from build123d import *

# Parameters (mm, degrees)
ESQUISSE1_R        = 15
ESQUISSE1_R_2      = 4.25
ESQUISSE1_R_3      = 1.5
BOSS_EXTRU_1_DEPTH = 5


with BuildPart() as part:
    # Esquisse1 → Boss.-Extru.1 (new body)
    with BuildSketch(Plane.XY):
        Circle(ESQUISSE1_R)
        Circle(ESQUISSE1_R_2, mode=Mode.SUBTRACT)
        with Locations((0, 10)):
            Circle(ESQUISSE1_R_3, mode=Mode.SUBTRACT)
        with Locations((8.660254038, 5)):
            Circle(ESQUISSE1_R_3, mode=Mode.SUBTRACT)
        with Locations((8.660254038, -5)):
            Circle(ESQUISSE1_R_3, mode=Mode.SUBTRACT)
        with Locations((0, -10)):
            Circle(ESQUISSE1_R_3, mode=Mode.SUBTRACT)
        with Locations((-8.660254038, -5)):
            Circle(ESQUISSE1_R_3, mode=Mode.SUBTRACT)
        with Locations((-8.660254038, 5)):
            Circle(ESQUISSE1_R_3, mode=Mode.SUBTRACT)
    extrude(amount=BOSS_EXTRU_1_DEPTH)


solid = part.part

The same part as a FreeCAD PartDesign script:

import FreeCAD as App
import Part
import Sketcher

V = App.Vector
Q = App.Units.Quantity

doc = App.newDocument("Part")
params = doc.addObject("Spreadsheet::Sheet", "Params")
for row, (alias, value) in enumerate([
    ("sketch1_diameter", "30 mm"),
    ("sketch1_diameter2", "3 mm"),
    ("sketch1_diameter3", "8.5 mm"),
    ("pad1_length", "5 mm"),
], start=1):
    params.set(f"A{row}", alias)
    params.set(f"B{row}", "=" + value)
    params.setAlias(f"B{row}", alias)

body = doc.addObject("PartDesign::Body", "Body")

sketch1 = body.newObject("Sketcher::SketchObject", "Sketch")
sketch1.AttachmentSupport = (doc.getObject("XY_Plane"), [""])
sketch1.MapMode = "FlatFace"
sketch1.addGeometry(Part.Circle(V(0, 0, 0), V(0, 0, 1), 15), False)
sketch1.addGeometry(Part.Circle(V(-8.7, -5, 0), V(0, 0, 1), 1.5), False)
sketch1.addGeometry(Part.Circle(V(0, -10, 0), V(0, 0, 1), 1.5), False)
sketch1.addGeometry(Part.Circle(V(8.7, -5, 0), V(0, 0, 1), 1.5), False)
sketch1.addGeometry(Part.Circle(V(-8.7, 5, 0), V(0, 0, 1), 1.5), False)
sketch1.addGeometry(Part.Circle(V(0, 0, 0), V(0, 0, 1), 4.2), False)
sketch1.addGeometry(Part.Circle(V(8.7, 5, 0), V(0, 0, 1), 1.5), False)
sketch1.addGeometry(Part.Circle(V(0, 10, 0), V(0, 0, 1), 1.5), False)
sketch1.addConstraint(Sketcher.Constraint("Coincident", 0, 3, -1, 1))
sketch1.addConstraint(Sketcher.Constraint("Coincident", 5, 3, -1, 1))
sketch1.addConstraint(Sketcher.Constraint("Equal", 1, 2))
sketch1.addConstraint(Sketcher.Constraint("Equal", 2, 3))
sketch1.addConstraint(Sketcher.Constraint("Equal", 3, 4))
sketch1.addConstraint(Sketcher.Constraint("Equal", 4, 6))
sketch1.addConstraint(Sketcher.Constraint("Equal", 6, 7))
sketch1.addConstraint(Sketcher.Constraint("Symmetric", 3, 3, 4, 3, -1, 1))
sketch1.addConstraint(Sketcher.Constraint("Symmetric", 1, 3, 6, 3, -1, 1))
sketch1.addConstraint(Sketcher.Constraint("Symmetric", 2, 3, 7, 3, -1, 1))
sketch1.addConstraint(Sketcher.Constraint("Symmetric", 1, 3, 3, 3, -2))
sketch1.addConstraint(Sketcher.Constraint("PointOnObject", 2, 3, -2))
sketch1.addConstraint(Sketcher.Constraint("Diameter", 0, Q("30 mm")))
sketch1.addConstraint(Sketcher.Constraint("Diameter", 1, Q("3 mm")))
sketch1.addConstraint(Sketcher.Constraint("Diameter", 5, Q("8.5 mm")))
sketch1.addConstraint(Sketcher.Constraint("DistanceY", 1, 3, -1, 1, Q("5 mm")))
sketch1.addConstraint(Sketcher.Constraint("DistanceY", 2, 3, -1, 1, Q("10 mm")))
sketch1.addConstraint(Sketcher.Constraint("DistanceX", 1, 3, 3, 3, Q("17.320508 mm")))
sketch1.setExpression("Constraints[12]", "Params.sketch1_diameter")
sketch1.setExpression("Constraints[13]", "Params.sketch1_diameter2")
sketch1.setExpression("Constraints[14]", "Params.sketch1_diameter3")
pad1 = body.newObject("PartDesign::Pad", "Pad")
pad1.Profile = sketch1
pad1.setExpression("Length", "Params.pad1_length")

doc.recompute()
